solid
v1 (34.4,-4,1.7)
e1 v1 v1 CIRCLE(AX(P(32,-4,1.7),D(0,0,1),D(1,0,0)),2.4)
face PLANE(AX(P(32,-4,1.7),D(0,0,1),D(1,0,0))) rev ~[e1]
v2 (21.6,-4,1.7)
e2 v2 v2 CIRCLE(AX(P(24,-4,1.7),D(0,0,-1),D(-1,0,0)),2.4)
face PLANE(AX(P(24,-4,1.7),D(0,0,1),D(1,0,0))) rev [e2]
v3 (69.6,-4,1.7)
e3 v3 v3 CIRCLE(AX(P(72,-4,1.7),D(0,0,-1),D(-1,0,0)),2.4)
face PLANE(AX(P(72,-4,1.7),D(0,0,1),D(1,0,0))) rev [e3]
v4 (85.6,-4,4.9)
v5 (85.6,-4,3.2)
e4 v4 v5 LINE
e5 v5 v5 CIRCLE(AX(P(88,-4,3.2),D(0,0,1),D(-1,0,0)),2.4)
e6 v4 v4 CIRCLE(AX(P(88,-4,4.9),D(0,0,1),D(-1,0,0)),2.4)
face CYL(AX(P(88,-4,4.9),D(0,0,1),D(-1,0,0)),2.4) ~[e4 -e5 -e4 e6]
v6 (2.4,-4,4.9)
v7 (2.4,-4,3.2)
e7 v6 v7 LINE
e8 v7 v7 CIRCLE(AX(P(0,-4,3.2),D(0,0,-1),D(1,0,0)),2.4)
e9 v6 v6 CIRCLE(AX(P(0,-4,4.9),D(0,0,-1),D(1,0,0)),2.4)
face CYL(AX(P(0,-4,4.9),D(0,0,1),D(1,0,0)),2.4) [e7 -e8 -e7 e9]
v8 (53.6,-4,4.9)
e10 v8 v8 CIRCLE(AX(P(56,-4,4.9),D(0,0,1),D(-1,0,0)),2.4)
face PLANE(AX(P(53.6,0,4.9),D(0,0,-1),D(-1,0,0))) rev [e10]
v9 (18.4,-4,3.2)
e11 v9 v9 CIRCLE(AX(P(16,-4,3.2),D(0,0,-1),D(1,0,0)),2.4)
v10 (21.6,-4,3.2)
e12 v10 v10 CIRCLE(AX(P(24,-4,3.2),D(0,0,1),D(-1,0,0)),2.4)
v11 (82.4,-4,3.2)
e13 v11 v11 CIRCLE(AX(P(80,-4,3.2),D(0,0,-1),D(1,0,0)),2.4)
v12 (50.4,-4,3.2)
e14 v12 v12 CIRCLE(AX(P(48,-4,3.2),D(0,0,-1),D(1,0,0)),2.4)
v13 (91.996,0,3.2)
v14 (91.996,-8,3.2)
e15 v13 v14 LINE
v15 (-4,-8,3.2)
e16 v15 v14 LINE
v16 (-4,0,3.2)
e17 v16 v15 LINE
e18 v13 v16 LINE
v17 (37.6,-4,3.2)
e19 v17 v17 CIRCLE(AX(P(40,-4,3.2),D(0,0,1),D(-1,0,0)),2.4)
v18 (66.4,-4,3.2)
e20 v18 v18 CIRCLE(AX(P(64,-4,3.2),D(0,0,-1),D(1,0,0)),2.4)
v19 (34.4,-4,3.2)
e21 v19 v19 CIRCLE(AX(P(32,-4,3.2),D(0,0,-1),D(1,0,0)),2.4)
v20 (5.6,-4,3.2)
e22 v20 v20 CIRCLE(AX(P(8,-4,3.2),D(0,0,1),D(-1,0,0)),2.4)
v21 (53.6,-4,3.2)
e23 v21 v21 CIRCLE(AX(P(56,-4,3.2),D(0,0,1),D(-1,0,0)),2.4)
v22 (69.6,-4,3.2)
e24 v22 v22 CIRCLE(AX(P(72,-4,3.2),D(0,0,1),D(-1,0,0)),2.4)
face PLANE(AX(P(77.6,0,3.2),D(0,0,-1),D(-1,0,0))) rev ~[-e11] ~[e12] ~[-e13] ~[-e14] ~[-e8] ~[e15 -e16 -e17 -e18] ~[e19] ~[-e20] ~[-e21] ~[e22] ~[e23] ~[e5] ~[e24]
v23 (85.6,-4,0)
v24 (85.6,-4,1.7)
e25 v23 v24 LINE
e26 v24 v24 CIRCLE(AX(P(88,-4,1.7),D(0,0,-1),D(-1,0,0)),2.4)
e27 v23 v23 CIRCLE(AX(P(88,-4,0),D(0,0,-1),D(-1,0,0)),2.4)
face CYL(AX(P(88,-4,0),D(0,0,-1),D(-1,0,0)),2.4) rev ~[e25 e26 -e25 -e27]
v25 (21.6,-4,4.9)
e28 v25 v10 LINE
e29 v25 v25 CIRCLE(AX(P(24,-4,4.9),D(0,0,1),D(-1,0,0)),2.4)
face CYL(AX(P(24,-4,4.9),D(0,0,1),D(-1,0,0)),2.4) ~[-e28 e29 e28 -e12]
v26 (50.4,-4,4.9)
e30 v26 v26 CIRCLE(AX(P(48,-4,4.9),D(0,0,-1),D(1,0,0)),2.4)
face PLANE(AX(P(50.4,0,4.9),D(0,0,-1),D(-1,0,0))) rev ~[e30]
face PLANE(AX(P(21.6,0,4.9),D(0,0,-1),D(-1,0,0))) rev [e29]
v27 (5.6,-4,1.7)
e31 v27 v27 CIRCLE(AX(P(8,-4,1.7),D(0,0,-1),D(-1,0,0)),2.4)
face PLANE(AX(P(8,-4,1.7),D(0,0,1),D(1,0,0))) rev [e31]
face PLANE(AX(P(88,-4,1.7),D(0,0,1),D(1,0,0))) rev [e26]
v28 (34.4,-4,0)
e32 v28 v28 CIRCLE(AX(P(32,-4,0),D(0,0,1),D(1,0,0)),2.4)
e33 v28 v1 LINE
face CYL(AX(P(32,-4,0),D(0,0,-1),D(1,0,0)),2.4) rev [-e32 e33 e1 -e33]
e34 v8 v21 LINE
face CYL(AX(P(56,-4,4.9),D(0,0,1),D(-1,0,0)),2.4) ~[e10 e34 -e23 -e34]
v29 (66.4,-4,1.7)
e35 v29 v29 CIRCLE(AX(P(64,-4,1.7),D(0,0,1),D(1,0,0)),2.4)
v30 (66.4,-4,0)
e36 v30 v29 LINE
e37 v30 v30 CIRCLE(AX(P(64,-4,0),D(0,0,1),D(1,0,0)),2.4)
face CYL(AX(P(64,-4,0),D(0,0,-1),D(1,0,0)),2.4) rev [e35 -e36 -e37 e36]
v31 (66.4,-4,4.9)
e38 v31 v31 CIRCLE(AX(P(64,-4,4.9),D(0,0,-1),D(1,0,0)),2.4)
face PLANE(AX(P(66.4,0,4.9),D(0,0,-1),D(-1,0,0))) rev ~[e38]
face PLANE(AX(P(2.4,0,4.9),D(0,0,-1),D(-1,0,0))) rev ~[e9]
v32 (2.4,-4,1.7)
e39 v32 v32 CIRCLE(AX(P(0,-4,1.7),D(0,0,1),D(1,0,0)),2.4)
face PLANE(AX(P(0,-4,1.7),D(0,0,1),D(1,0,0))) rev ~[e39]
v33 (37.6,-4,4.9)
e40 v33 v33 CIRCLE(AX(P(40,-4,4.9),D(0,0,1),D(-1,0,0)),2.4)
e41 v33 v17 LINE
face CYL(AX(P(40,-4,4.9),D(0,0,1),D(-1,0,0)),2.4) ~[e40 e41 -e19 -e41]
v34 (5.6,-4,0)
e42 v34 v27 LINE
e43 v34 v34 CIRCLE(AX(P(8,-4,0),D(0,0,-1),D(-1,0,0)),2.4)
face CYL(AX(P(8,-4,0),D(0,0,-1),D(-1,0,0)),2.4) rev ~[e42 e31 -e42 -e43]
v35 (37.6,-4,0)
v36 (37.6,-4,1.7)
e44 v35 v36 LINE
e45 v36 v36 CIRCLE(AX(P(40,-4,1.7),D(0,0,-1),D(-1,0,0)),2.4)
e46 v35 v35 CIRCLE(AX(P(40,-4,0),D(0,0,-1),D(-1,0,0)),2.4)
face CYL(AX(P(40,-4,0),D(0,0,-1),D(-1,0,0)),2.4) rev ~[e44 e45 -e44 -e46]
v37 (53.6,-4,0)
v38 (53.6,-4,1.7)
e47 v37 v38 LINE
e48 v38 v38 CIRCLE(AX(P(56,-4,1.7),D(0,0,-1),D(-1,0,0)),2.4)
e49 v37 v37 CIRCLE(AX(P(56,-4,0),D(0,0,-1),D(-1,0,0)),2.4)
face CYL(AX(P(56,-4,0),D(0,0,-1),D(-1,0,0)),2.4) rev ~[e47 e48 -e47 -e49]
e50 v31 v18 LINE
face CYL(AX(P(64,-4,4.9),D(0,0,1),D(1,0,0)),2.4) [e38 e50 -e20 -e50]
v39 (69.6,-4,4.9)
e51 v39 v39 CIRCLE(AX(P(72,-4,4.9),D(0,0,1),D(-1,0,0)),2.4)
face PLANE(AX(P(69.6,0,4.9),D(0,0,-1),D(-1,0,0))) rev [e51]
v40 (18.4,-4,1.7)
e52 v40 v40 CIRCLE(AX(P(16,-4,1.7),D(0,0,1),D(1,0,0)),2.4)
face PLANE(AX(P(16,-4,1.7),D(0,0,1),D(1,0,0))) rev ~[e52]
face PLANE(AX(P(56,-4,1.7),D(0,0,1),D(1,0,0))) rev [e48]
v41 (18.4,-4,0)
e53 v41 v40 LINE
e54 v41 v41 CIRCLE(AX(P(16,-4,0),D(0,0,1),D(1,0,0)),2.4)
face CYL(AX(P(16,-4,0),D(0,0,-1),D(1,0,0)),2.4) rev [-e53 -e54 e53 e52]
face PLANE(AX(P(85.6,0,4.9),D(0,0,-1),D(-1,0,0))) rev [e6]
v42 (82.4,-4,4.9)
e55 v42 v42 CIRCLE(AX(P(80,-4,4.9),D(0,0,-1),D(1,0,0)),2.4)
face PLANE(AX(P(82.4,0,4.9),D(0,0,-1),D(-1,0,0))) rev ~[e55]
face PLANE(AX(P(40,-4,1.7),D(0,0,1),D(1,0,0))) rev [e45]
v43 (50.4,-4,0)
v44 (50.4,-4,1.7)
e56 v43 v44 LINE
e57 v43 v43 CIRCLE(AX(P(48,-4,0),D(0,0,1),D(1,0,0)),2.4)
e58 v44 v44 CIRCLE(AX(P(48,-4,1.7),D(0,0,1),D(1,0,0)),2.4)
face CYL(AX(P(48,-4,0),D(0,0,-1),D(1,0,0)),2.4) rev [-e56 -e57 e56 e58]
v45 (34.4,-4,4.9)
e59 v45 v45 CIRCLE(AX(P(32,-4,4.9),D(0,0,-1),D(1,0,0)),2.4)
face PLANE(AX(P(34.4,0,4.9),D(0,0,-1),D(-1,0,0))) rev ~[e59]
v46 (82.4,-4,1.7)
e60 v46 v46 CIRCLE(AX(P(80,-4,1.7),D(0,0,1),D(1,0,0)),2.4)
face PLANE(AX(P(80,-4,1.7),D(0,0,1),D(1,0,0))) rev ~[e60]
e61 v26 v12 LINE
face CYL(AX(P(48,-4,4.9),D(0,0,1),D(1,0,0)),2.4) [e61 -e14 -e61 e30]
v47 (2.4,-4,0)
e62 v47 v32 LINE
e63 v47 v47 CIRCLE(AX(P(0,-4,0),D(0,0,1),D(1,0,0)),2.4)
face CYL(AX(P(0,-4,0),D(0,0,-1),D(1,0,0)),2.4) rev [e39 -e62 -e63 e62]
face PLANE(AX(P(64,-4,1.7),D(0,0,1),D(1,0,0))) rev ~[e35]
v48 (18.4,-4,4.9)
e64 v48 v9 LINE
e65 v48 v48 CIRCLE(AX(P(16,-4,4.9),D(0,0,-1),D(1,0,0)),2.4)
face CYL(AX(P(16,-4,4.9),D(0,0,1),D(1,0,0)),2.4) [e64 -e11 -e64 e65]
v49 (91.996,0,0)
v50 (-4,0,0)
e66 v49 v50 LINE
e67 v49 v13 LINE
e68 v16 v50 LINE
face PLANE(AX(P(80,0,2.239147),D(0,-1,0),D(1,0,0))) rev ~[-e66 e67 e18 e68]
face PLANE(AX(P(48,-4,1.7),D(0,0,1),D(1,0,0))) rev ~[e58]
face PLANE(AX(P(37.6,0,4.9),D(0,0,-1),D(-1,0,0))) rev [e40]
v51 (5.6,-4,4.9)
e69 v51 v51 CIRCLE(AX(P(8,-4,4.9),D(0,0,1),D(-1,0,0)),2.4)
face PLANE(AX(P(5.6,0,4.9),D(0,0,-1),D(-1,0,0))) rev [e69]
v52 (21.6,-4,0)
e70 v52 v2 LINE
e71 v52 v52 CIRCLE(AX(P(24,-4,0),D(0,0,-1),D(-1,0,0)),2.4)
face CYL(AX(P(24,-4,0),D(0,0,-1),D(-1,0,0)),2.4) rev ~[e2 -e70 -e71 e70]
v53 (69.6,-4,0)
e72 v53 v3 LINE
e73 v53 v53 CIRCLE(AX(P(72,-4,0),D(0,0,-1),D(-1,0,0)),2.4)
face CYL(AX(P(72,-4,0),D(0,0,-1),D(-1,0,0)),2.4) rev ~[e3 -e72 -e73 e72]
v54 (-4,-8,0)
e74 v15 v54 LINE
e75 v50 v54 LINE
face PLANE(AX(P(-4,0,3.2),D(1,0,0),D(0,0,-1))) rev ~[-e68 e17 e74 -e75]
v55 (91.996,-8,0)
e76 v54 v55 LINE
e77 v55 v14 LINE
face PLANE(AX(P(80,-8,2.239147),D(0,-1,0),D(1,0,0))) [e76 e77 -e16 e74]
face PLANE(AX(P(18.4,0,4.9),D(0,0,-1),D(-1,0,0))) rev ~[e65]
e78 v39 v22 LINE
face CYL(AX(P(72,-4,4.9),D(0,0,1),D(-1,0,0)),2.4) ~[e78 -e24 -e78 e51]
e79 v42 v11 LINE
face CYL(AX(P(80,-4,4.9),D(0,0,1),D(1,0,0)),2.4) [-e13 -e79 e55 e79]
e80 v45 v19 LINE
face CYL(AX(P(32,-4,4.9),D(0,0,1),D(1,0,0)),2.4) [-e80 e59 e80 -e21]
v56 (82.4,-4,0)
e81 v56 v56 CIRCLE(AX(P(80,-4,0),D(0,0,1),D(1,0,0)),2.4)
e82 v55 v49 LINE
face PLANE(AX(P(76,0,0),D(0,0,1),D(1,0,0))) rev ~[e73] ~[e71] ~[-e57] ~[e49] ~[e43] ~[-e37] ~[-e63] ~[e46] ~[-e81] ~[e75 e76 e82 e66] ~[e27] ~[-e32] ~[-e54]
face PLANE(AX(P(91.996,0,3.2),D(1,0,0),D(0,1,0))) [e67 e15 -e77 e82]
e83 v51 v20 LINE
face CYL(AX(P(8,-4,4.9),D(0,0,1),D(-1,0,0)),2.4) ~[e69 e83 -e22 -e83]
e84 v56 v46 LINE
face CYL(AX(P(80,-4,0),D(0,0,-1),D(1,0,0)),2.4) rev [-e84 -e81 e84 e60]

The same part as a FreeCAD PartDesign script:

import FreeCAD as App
import Part
import Sketcher

V = App.Vector


def add_polygon(sketch, points):
    """Adds a closed chain of lines whose ends are joined by coincident constraints."""
    first, n = sketch.GeometryCount, len(points)
    for a, b in zip(points, points[1:] + points[:1]):
        sketch.addGeometry(Part.LineSegment(App.Vector(*a, 0), App.Vector(*b, 0)), False)
    for i in range(n):
        sketch.addConstraint(Sketcher.Constraint("Coincident", first + i, 2, first + (i + 1) % n, 1))

doc = App.newDocument("Part")
body = doc.addObject("PartDesign::Body", "Body")

sketch1 = body.newObject("Sketcher::SketchObject", "Sketch")
sketch1.AttachmentSupport = (doc.getObject("XZ_Plane"), [""])
sketch1.MapMode = "FlatFace"
add_polygon(sketch1, [(-2.4, 3.2), (-4, 3.2), (-4, 0), (4, 0), (4, 3.2), (2.4, 3.2), (2.4, 4.9), (-2.4, 4.9)])
sketch1.addConstraint([
    Sketcher.Constraint("Horizontal", 0),
    Sketcher.Constraint("Vertical", 1),
    Sketcher.Constraint("Horizontal", 2),
    Sketcher.Constraint("Vertical", 3),
    Sketcher.Constraint("Horizontal", 4),
    Sketcher.Constraint("Vertical", 5),
    Sketcher.Constraint("Horizontal", 6),
    Sketcher.Constraint("Vertical", 7),
    Sketcher.Constraint("Symmetric", 1, 2, 2, 2, -1, 1),
    Sketcher.Constraint("Symmetric", 4, 2, 7, 2, -2),
    Sketcher.Constraint("DistanceX", 2, 1, 2, 2, 8.0),
    Sketcher.Constraint("DistanceX", 0, 2, 0, 1, 1.6),
    Sketcher.Constraint("DistanceY", 1, 2, 1, 1, 3.2),
    Sketcher.Constraint("DistanceY", 5, 1, 5, 2, 1.7),
])
pad1 = body.newObject("PartDesign::Pad", "Pad")
pad1.Profile = sketch1
pad1.Length = 8

sketch2 = body.newObject("Sketcher::SketchObject", "Sketch001")
sketch2.AttachmentSupport = (doc.getObject("XY_Plane"), [""])
sketch2.MapMode = "FlatFace"
sketch2.AttachmentOffset = App.Placement(V(0, 0, 4.9), App.Rotation())
add_polygon(sketch2, [(-4, 0), (-4, -8), (4, -8), (4, 0)])
sketch2.addGeometry(Part.Circle(V(0, -4, 0), V(0, 0, 1), 2.4), False)
sketch2.addConstraint([
    Sketcher.Constraint("Vertical", 0),
    Sketcher.Constraint("Horizontal", 1),
    Sketcher.Constraint("Vertical", 2),
    Sketcher.Constraint("Horizontal", 3),
    Sketcher.Constraint("Symmetric", 2, 2, 3, 2, -1, 1),
    Sketcher.Constraint("PointOnObject", 4, 3, -2),
    Sketcher.Constraint("Equal", 3, 0),
    Sketcher.Constraint("Diameter", 4, 4.8),
    Sketcher.Constraint("DistanceX", 1, 1, 1, 2, 8.0),
    Sketcher.Constraint("DistanceY", 4, 3, -1, 1, 4.0),
])
pocket1 = body.newObject("PartDesign::Pocket", "Pocket")
pocket1.Profile = sketch2
pocket1.Length = 1.7

sketch3 = body.newObject("Sketcher::SketchObject", "Sketch002")
sketch3.AttachmentSupport = (doc.getObject("XY_Plane"), [""])
sketch3.MapMode = "FlatFace"
sketch3.addGeometry(Part.Circle(V(0, -4, 0), V(0, 0, 1), 2.4), False)
sketch3.addConstraint([
    Sketcher.Constraint("PointOnObject", 0, 3, -2),
    Sketcher.Constraint("Diameter", 0, 4.8),
    Sketcher.Constraint("DistanceY", 0, 3, -1, 1, 4.0),
])
pocket2 = body.newObject("PartDesign::Pocket", "Pocket001")
pocket2.Profile = sketch3
pocket2.Length = 1.7
pocket2.Reversed = True
body2 = doc.addObject("PartDesign::Body", "Body001")
doc.recompute()

body2.BaseFeature = body
doc.recompute()

mirroring = doc.addObject("Part::Mirroring", "Mirroring")
mirroring.Source = body
mirroring.Base = V(4, 0, 0)
mirroring.Normal = V(1, 0, 0)
body3 = doc.addObject("PartDesign::Body", "Body002")
body3.BaseFeature = mirroring
boolean = body2.newObject("PartDesign::Boolean", "Boolean")
boolean.Type = "Fuse"
boolean.addObjects([body3])
doc.recompute()
body4 = doc.addObject("PartDesign::Body", "Body003")
doc.recompute()

body4.BaseFeature = body2
doc.recompute()

mirroring2 = doc.addObject("Part::Mirroring", "Mirroring001")
mirroring2.Source = body2
mirroring2.Base = V(12, 0, 0)
mirroring2.Normal = V(1, 0, 0)
body5 = doc.addObject("PartDesign::Body", "Body004")
body5.BaseFeature = mirroring2
boolean2 = body4.newObject("PartDesign::Boolean", "Boolean001")
boolean2.Type = "Fuse"
boolean2.addObjects([body5])
doc.recompute()
body6 = doc.addObject("PartDesign::Body", "Body005")
doc.recompute()

body6.BaseFeature = body4
doc.recompute()

mirroring3 = doc.addObject("Part::Mirroring", "Mirroring002")
mirroring3.Source = body4
mirroring3.Base = V(28, 0, 0)
mirroring3.Normal = V(1, 0, 0)
body7 = doc.addObject("PartDesign::Body", "Body006")
body7.BaseFeature = mirroring3
boolean3 = body6.newObject("PartDesign::Boolean", "Boolean002")
boolean3.Type = "Fuse"
boolean3.addObjects([body7])
doc.recompute()
body8 = doc.addObject("PartDesign::Body", "Body007")
doc.recompute()

body8.BaseFeature = body6
doc.recompute()

mirroring4 = doc.addObject("Part::Mirroring", "Mirroring003")
mirroring4.Source = body6
mirroring4.Base = V(60, -4, 1.6)
mirroring4.Normal = V(1, 0, 0)
body9 = doc.addObject("PartDesign::Body", "Body008")
body9.BaseFeature = mirroring4
boolean4 = body8.newObject("PartDesign::Boolean", "Boolean003")
boolean4.Type = "Fuse"
boolean4.addObjects([body9])
doc.recompute()

sketch4 = body8.newObject("Sketcher::SketchObject", "Sketch003")
sketch4.AttachmentSupport = (doc.getObject("YZ_Plane007"), [""])
sketch4.MapMode = "FlatFace"
sketch4.AttachmentOffset = App.Placement(V(0, 0, 124), App.Rotation())
add_polygon(sketch4, [(-15.687663, 16.410265), (-15.687663, -10.010265), (15.687663, -10.010265), (15.687663, 16.410265)])
sketch4.addConstraint([
    Sketcher.Constraint("Vertical", 0),
    Sketcher.Constraint("Horizontal", 1),
    Sketcher.Constraint("Vertical", 2),
    Sketcher.Constraint("Horizontal", 3),
    Sketcher.Constraint("DistanceY", 0, 2, 0, 1, 26.42053),
    Sketcher.Constraint("DistanceX", 1, 1, 1, 2, 31.375326),
    Sketcher.Constraint("DistanceX", 0, 2, -1, 1, 15.687663),
    Sketcher.Constraint("DistanceY", 0, 2, -1, 1, 10.010265),
])
pocket3 = body8.newObject("PartDesign::Pocket", "Pocket002")
pocket3.Profile = sketch4
pocket3.Length = 32.004
mirroring.Visibility = False
mirroring2.Visibility = False
mirroring3.Visibility = False
mirroring4.Visibility = False

doc.recompute()
